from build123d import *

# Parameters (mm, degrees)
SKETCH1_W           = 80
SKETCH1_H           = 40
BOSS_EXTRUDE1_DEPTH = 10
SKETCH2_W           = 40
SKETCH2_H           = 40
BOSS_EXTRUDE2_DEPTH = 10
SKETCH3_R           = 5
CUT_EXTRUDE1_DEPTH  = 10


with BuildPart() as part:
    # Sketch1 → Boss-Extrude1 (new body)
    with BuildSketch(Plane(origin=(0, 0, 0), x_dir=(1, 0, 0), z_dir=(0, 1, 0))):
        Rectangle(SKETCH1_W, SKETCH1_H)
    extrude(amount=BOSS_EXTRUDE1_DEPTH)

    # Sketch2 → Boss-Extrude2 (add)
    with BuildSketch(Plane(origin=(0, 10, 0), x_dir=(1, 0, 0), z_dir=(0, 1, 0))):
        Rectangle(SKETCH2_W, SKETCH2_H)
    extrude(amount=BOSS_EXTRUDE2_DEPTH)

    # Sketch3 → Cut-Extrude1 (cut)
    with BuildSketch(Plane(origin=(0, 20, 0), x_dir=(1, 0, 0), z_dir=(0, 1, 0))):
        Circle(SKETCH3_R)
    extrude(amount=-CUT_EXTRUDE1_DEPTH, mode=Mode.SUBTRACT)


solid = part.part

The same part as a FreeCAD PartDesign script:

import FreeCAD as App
import Part
import Sketcher
Q = App.Units.Quantity

doc = App.newDocument("Part")
body = doc.addObject("PartDesign::Body", "Body")

# Sketch on XZ plane
sketch1 = body.newObject("Sketcher::SketchObject", "Sketch")
sketch1.AttachmentSupport = (doc.getObject("XZ_Plane"), [""])
sketch1.MapMode = "FlatFace"
sketch1.addGeometry(Part.LineSegment(App.Vector(-40, -20, 0), App.Vector(-40, 20, 0)), False)
sketch1.addGeometry(Part.LineSegment(App.Vector(-40, 20, 0), App.Vector(40, 20, 0)), False)
sketch1.addGeometry(Part.LineSegment(App.Vector(40, 20, 0), App.Vector(40, -20, 0)), False)
sketch1.addGeometry(Part.LineSegment(App.Vector(40, -20, 0), App.Vector(-40, -20, 0)), False)
sketch1.addConstraint(Sketcher.Constraint("Coincident", 0, 2, 1, 1))
sketch1.addConstraint(Sketcher.Constraint("Coincident", 1, 2, 2, 1))
sketch1.addConstraint(Sketcher.Constraint("Coincident", 2, 2, 3, 1))
sketch1.addConstraint(Sketcher.Constraint("Coincident", 3, 2, 0, 1))
sketch1.addConstraint(Sketcher.Constraint("Vertical", 0))
sketch1.addConstraint(Sketcher.Constraint("Horizontal", 1))
sketch1.addConstraint(Sketcher.Constraint("Vertical", 2))
sketch1.addConstraint(Sketcher.Constraint("Horizontal", 3))
sketch1.addConstraint(Sketcher.Constraint("Symmetric", 0, 2, 2, 2, -1, 1))
sketch1.addConstraint(Sketcher.Constraint("DistanceX", 1, 1, 1, 2, Q("80 mm")))
sketch1.addConstraint(Sketcher.Constraint("DistanceY", 0, 1, 0, 2, Q("40 mm")))
pad1 = body.newObject("PartDesign::Pad", "Pad")
pad1.Profile = sketch1
pad1.Length = 10
pad1.Reversed = True

# Sketch on XZ plane
sketch2 = body.newObject("Sketcher::SketchObject", "Sketch001")
sketch2.AttachmentSupport = (doc.getObject("XZ_Plane"), [""])
sketch2.MapMode = "FlatFace"
sketch2.AttachmentOffset = App.Placement(App.Vector(0, 0, -10), App.Rotation())
sketch2.addGeometry(Part.LineSegment(App.Vector(-20, -20, 0), App.Vector(-20, 20, 0)), False)
sketch2.addGeometry(Part.LineSegment(App.Vector(-20, 20, 0), App.Vector(20, 20, 0)), False)
sketch2.addGeometry(Part.LineSegment(App.Vector(20, 20, 0), App.Vector(20, -20, 0)), False)
sketch2.addGeometry(Part.LineSegment(App.Vector(20, -20, 0), App.Vector(-20, -20, 0)), False)
sketch2.addConstraint(Sketcher.Constraint("Coincident", 0, 2, 1, 1))
sketch2.addConstraint(Sketcher.Constraint("Coincident", 1, 2, 2, 1))
sketch2.addConstraint(Sketcher.Constraint("Coincident", 2, 2, 3, 1))
sketch2.addConstraint(Sketcher.Constraint("Coincident", 3, 2, 0, 1))
sketch2.addConstraint(Sketcher.Constraint("Vertical", 0))
sketch2.addConstraint(Sketcher.Constraint("Horizontal", 1))
sketch2.addConstraint(Sketcher.Constraint("Vertical", 2))
sketch2.addConstraint(Sketcher.Constraint("Horizontal", 3))
sketch2.addConstraint(Sketcher.Constraint("Symmetric", 0, 2, 2, 2, -1, 1))
sketch2.addConstraint(Sketcher.Constraint("Equal", 3, 0))
sketch2.addConstraint(Sketcher.Constraint("DistanceX", 1, 1, 1, 2, Q("40 mm")))
pad2 = body.newObject("PartDesign::Pad", "Pad001")
pad2.Profile = sketch2
pad2.Length = 10
pad2.Reversed = True

# Sketch on XZ plane
sketch3 = body.newObject("Sketcher::SketchObject", "Sketch002")
sketch3.AttachmentSupport = (doc.getObject("XZ_Plane"), [""])
sketch3.MapMode = "FlatFace"
sketch3.AttachmentOffset = App.Placement(App.Vector(0, 0, -20), App.Rotation())
sketch3.addGeometry(Part.Circle(App.Vector(0, 0, 0), App.Vector(0, 0, 1), 5), False)
sketch3.addConstraint(Sketcher.Constraint("Coincident", 0, 3, -1, 1))
sketch3.addConstraint(Sketcher.Constraint("Diameter", 0, Q("10 mm")))
pocket1 = body.newObject("PartDesign::Pocket", "Pocket")
pocket1.Profile = sketch3
pocket1.Length = 10
pocket1.Reversed = True

doc.recompute()
